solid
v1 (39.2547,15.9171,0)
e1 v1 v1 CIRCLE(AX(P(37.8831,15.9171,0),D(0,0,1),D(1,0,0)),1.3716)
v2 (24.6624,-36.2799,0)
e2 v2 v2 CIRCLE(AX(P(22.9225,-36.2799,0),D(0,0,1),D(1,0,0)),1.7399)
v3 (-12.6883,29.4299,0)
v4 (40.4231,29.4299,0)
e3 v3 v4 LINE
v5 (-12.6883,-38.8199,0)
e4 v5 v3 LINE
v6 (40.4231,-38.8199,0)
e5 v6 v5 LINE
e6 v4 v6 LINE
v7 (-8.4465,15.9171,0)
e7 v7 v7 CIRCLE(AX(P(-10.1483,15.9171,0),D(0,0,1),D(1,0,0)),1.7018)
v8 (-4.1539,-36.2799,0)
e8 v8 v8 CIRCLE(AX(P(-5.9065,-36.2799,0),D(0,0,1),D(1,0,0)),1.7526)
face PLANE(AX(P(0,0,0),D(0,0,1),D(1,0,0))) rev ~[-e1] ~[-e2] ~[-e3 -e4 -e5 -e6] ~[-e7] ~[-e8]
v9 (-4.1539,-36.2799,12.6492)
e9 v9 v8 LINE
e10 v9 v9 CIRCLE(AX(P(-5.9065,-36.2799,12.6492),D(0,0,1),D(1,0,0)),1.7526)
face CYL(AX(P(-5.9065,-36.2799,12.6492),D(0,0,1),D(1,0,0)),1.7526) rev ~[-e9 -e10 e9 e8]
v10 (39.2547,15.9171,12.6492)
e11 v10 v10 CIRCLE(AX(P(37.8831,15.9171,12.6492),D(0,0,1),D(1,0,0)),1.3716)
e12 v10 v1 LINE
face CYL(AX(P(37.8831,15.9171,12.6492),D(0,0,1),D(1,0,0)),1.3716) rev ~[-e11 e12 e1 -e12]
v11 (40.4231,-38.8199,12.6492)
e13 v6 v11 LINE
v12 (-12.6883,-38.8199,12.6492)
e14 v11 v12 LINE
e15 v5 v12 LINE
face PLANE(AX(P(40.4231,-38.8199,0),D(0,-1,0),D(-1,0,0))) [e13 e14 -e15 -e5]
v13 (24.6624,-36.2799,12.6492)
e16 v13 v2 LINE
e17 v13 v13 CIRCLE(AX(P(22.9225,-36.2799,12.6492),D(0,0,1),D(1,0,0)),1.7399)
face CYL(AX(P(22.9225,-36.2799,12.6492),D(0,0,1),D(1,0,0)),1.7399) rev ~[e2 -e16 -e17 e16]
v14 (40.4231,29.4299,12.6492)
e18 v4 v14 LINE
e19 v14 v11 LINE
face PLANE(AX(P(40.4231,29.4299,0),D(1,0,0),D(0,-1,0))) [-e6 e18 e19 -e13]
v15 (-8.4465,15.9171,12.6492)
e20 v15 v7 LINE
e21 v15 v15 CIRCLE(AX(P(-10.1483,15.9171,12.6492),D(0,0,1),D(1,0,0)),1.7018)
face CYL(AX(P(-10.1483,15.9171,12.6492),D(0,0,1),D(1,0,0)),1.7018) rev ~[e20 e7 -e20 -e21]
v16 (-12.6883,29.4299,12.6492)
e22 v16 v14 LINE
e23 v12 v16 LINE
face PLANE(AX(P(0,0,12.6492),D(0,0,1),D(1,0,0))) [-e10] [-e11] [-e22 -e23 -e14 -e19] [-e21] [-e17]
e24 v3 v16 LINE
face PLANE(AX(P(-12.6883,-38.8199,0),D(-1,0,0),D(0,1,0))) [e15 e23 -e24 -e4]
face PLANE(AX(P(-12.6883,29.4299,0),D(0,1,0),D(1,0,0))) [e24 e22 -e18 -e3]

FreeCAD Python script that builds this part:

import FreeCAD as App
import Part
import Sketcher
Q = App.Units.Quantity


def add_polygon(sketch, points):
    """Adds a closed chain of lines whose ends are joined by coincident constraints."""
    first, n = sketch.GeometryCount, len(points)
    for a, b in zip(points, points[1:] + points[:1]):
        sketch.addGeometry(Part.LineSegment(App.Vector(*a, 0), App.Vector(*b, 0)), False)
    for i in range(n):
        sketch.addConstraint(Sketcher.Constraint("Coincident", first + i, 2, first + (i + 1) % n, 1))

doc = App.newDocument("Part")
body = doc.addObject("PartDesign::Body", "Body")

# Sketch on XY plane
sketch1 = doc.addObject("Sketcher::SketchObject", "Sketch")
body.addObject(sketch1)
sketch1.AttachmentSupport = (doc.XY_Plane, [""])
sketch1.MapMode = "FlatFace"
add_polygon(sketch1, [(40.4231, 29.4299), (-12.6883, 29.4299), (-12.6883, -38.8199), (40.4231, -38.8199)])  # lines 0-3
sketch1.addConstraint(Sketcher.Constraint("Horizontal", 0))
sketch1.addConstraint(Sketcher.Constraint("Vertical", 1))
sketch1.addConstraint(Sketcher.Constraint("Horizontal", 2))
sketch1.addConstraint(Sketcher.Constraint("Vertical", 3))
sketch1.addConstraint(Sketcher.Constraint("DistanceX", 0, 2, 0, 1, Q("2.091 in")))
sketch1.addConstraint(Sketcher.Constraint("DistanceY", 1, 2, 1, 1, Q("2.687 in")))
sketch1.addConstraint(Sketcher.Constraint("DistanceX", 0, 2, -1, 1, Q("12.6883 mm")))
sketch1.addConstraint(Sketcher.Constraint("DistanceY", -1, 1, 0, 2, Q("29.43 mm")))
pad1 = doc.addObject("PartDesign::Pad", "Pad")
body.addObject(pad1)
pad1.Profile = sketch1
pad1.Length = Q("0.498 in")

# Sketch on XY plane
sketch2 = doc.addObject("Sketcher::SketchObject", "Sketch001")
body.addObject(sketch2)
sketch2.AttachmentSupport = (doc.XY_Plane, [""])
sketch2.MapMode = "FlatFace"
sketch2.AttachmentOffset = App.Placement(App.Vector(0, 0, 0.498 * 25.4), App.Rotation())
sketch2.addGeometry(Part.Circle(App.Vector(-10.1483, 15.9171, 0), App.Vector(0, 0, 1), 1.7018), False)
sketch2.addConstraint(Sketcher.Constraint("Diameter", 0, Q("0.134 in")))
sketch2.addConstraint(Sketcher.Constraint("DistanceX", 0, 3, -1, 1, Q("10.1483 mm")))
sketch2.addConstraint(Sketcher.Constraint("DistanceY", -1, 1, 0, 3, Q("15.917 mm")))
pocket1 = doc.addObject("PartDesign::Pocket", "Pocket")
body.addObject(pocket1)
pocket1.Profile = sketch2
pocket1.Length = Q("0.5 in")

# Sketch on XY plane
sketch3 = doc.addObject("Sketcher::SketchObject", "Sketch002")
body.addObject(sketch3)
sketch3.AttachmentSupport = (doc.XY_Plane, [""])
sketch3.MapMode = "FlatFace"
sketch3.AttachmentOffset = App.Placement(App.Vector(0, 0, 0.498 * 25.4), App.Rotation())
sketch3.addGeometry(Part.Circle(App.Vector(22.9225, -36.2799, 0), App.Vector(0, 0, 1), 1.7399), False)
sketch3.addConstraint(Sketcher.Constraint("Diameter", 0, Q("0.137 in")))
sketch3.addConstraint(Sketcher.Constraint("DistanceX", -1, 1, 0, 3, Q("22.9225 mm")))
sketch3.addConstraint(Sketcher.Constraint("DistanceY", 0, 3, -1, 1, Q("36.28 mm")))
pocket2 = doc.addObject("PartDesign::Pocket", "Pocket001")
body.addObject(pocket2)
pocket2.Profile = sketch3
pocket2.Length = Q("0.5 in")

# Sketch on XY plane
sketch4 = doc.addObject("Sketcher::SketchObject", "Sketch003")
body.addObject(sketch4)
sketch4.AttachmentSupport = (doc.XY_Plane, [""])
sketch4.MapMode = "FlatFace"
sketch4.AttachmentOffset = App.Placement(App.Vector(0, 0, 0.498 * 25.4), App.Rotation())
sketch4.addGeometry(Part.Circle(App.Vector(-5.9065, -36.2799, 0), App.Vector(0, 0, 1), 1.7526), False)
sketch4.addConstraint(Sketcher.Constraint("Diameter", 0, Q("0.138 in")))
sketch4.addConstraint(Sketcher.Constraint("DistanceX", 0, 3, -1, 1, Q("5.9065 mm")))
sketch4.addConstraint(Sketcher.Constraint("DistanceY", 0, 3, -1, 1, Q("36.28 mm")))
pocket3 = doc.addObject("PartDesign::Pocket", "Pocket002")
body.addObject(pocket3)
pocket3.Profile = sketch4
pocket3.Length = Q("0.5 in")

# Sketch on XY plane
sketch5 = doc.addObject("Sketcher::SketchObject", "Sketch004")
body.addObject(sketch5)
sketch5.AttachmentSupport = (doc.XY_Plane, [""])
sketch5.MapMode = "FlatFace"
sketch5.AttachmentOffset = App.Placement(App.Vector(0, 0, 0.498 * 25.4), App.Rotation())
sketch5.addGeometry(Part.Circle(App.Vector(37.8831, 15.9171, 0), App.Vector(0, 0, 1), 1.3716), False)
sketch5.addConstraint(Sketcher.Constraint("Diameter", 0, Q("0.108 in")))
sketch5.addConstraint(Sketcher.Constraint("DistanceX", -1, 1, 0, 3, Q("37.883 mm")))
sketch5.addConstraint(Sketcher.Constraint("DistanceY", -1, 1, 0, 3, Q("15.917 mm")))
pocket4 = doc.addObject("PartDesign::Pocket", "Pocket003")
body.addObject(pocket4)
pocket4.Profile = sketch5
pocket4.Length = Q("0.5 in")

doc.recompute()
